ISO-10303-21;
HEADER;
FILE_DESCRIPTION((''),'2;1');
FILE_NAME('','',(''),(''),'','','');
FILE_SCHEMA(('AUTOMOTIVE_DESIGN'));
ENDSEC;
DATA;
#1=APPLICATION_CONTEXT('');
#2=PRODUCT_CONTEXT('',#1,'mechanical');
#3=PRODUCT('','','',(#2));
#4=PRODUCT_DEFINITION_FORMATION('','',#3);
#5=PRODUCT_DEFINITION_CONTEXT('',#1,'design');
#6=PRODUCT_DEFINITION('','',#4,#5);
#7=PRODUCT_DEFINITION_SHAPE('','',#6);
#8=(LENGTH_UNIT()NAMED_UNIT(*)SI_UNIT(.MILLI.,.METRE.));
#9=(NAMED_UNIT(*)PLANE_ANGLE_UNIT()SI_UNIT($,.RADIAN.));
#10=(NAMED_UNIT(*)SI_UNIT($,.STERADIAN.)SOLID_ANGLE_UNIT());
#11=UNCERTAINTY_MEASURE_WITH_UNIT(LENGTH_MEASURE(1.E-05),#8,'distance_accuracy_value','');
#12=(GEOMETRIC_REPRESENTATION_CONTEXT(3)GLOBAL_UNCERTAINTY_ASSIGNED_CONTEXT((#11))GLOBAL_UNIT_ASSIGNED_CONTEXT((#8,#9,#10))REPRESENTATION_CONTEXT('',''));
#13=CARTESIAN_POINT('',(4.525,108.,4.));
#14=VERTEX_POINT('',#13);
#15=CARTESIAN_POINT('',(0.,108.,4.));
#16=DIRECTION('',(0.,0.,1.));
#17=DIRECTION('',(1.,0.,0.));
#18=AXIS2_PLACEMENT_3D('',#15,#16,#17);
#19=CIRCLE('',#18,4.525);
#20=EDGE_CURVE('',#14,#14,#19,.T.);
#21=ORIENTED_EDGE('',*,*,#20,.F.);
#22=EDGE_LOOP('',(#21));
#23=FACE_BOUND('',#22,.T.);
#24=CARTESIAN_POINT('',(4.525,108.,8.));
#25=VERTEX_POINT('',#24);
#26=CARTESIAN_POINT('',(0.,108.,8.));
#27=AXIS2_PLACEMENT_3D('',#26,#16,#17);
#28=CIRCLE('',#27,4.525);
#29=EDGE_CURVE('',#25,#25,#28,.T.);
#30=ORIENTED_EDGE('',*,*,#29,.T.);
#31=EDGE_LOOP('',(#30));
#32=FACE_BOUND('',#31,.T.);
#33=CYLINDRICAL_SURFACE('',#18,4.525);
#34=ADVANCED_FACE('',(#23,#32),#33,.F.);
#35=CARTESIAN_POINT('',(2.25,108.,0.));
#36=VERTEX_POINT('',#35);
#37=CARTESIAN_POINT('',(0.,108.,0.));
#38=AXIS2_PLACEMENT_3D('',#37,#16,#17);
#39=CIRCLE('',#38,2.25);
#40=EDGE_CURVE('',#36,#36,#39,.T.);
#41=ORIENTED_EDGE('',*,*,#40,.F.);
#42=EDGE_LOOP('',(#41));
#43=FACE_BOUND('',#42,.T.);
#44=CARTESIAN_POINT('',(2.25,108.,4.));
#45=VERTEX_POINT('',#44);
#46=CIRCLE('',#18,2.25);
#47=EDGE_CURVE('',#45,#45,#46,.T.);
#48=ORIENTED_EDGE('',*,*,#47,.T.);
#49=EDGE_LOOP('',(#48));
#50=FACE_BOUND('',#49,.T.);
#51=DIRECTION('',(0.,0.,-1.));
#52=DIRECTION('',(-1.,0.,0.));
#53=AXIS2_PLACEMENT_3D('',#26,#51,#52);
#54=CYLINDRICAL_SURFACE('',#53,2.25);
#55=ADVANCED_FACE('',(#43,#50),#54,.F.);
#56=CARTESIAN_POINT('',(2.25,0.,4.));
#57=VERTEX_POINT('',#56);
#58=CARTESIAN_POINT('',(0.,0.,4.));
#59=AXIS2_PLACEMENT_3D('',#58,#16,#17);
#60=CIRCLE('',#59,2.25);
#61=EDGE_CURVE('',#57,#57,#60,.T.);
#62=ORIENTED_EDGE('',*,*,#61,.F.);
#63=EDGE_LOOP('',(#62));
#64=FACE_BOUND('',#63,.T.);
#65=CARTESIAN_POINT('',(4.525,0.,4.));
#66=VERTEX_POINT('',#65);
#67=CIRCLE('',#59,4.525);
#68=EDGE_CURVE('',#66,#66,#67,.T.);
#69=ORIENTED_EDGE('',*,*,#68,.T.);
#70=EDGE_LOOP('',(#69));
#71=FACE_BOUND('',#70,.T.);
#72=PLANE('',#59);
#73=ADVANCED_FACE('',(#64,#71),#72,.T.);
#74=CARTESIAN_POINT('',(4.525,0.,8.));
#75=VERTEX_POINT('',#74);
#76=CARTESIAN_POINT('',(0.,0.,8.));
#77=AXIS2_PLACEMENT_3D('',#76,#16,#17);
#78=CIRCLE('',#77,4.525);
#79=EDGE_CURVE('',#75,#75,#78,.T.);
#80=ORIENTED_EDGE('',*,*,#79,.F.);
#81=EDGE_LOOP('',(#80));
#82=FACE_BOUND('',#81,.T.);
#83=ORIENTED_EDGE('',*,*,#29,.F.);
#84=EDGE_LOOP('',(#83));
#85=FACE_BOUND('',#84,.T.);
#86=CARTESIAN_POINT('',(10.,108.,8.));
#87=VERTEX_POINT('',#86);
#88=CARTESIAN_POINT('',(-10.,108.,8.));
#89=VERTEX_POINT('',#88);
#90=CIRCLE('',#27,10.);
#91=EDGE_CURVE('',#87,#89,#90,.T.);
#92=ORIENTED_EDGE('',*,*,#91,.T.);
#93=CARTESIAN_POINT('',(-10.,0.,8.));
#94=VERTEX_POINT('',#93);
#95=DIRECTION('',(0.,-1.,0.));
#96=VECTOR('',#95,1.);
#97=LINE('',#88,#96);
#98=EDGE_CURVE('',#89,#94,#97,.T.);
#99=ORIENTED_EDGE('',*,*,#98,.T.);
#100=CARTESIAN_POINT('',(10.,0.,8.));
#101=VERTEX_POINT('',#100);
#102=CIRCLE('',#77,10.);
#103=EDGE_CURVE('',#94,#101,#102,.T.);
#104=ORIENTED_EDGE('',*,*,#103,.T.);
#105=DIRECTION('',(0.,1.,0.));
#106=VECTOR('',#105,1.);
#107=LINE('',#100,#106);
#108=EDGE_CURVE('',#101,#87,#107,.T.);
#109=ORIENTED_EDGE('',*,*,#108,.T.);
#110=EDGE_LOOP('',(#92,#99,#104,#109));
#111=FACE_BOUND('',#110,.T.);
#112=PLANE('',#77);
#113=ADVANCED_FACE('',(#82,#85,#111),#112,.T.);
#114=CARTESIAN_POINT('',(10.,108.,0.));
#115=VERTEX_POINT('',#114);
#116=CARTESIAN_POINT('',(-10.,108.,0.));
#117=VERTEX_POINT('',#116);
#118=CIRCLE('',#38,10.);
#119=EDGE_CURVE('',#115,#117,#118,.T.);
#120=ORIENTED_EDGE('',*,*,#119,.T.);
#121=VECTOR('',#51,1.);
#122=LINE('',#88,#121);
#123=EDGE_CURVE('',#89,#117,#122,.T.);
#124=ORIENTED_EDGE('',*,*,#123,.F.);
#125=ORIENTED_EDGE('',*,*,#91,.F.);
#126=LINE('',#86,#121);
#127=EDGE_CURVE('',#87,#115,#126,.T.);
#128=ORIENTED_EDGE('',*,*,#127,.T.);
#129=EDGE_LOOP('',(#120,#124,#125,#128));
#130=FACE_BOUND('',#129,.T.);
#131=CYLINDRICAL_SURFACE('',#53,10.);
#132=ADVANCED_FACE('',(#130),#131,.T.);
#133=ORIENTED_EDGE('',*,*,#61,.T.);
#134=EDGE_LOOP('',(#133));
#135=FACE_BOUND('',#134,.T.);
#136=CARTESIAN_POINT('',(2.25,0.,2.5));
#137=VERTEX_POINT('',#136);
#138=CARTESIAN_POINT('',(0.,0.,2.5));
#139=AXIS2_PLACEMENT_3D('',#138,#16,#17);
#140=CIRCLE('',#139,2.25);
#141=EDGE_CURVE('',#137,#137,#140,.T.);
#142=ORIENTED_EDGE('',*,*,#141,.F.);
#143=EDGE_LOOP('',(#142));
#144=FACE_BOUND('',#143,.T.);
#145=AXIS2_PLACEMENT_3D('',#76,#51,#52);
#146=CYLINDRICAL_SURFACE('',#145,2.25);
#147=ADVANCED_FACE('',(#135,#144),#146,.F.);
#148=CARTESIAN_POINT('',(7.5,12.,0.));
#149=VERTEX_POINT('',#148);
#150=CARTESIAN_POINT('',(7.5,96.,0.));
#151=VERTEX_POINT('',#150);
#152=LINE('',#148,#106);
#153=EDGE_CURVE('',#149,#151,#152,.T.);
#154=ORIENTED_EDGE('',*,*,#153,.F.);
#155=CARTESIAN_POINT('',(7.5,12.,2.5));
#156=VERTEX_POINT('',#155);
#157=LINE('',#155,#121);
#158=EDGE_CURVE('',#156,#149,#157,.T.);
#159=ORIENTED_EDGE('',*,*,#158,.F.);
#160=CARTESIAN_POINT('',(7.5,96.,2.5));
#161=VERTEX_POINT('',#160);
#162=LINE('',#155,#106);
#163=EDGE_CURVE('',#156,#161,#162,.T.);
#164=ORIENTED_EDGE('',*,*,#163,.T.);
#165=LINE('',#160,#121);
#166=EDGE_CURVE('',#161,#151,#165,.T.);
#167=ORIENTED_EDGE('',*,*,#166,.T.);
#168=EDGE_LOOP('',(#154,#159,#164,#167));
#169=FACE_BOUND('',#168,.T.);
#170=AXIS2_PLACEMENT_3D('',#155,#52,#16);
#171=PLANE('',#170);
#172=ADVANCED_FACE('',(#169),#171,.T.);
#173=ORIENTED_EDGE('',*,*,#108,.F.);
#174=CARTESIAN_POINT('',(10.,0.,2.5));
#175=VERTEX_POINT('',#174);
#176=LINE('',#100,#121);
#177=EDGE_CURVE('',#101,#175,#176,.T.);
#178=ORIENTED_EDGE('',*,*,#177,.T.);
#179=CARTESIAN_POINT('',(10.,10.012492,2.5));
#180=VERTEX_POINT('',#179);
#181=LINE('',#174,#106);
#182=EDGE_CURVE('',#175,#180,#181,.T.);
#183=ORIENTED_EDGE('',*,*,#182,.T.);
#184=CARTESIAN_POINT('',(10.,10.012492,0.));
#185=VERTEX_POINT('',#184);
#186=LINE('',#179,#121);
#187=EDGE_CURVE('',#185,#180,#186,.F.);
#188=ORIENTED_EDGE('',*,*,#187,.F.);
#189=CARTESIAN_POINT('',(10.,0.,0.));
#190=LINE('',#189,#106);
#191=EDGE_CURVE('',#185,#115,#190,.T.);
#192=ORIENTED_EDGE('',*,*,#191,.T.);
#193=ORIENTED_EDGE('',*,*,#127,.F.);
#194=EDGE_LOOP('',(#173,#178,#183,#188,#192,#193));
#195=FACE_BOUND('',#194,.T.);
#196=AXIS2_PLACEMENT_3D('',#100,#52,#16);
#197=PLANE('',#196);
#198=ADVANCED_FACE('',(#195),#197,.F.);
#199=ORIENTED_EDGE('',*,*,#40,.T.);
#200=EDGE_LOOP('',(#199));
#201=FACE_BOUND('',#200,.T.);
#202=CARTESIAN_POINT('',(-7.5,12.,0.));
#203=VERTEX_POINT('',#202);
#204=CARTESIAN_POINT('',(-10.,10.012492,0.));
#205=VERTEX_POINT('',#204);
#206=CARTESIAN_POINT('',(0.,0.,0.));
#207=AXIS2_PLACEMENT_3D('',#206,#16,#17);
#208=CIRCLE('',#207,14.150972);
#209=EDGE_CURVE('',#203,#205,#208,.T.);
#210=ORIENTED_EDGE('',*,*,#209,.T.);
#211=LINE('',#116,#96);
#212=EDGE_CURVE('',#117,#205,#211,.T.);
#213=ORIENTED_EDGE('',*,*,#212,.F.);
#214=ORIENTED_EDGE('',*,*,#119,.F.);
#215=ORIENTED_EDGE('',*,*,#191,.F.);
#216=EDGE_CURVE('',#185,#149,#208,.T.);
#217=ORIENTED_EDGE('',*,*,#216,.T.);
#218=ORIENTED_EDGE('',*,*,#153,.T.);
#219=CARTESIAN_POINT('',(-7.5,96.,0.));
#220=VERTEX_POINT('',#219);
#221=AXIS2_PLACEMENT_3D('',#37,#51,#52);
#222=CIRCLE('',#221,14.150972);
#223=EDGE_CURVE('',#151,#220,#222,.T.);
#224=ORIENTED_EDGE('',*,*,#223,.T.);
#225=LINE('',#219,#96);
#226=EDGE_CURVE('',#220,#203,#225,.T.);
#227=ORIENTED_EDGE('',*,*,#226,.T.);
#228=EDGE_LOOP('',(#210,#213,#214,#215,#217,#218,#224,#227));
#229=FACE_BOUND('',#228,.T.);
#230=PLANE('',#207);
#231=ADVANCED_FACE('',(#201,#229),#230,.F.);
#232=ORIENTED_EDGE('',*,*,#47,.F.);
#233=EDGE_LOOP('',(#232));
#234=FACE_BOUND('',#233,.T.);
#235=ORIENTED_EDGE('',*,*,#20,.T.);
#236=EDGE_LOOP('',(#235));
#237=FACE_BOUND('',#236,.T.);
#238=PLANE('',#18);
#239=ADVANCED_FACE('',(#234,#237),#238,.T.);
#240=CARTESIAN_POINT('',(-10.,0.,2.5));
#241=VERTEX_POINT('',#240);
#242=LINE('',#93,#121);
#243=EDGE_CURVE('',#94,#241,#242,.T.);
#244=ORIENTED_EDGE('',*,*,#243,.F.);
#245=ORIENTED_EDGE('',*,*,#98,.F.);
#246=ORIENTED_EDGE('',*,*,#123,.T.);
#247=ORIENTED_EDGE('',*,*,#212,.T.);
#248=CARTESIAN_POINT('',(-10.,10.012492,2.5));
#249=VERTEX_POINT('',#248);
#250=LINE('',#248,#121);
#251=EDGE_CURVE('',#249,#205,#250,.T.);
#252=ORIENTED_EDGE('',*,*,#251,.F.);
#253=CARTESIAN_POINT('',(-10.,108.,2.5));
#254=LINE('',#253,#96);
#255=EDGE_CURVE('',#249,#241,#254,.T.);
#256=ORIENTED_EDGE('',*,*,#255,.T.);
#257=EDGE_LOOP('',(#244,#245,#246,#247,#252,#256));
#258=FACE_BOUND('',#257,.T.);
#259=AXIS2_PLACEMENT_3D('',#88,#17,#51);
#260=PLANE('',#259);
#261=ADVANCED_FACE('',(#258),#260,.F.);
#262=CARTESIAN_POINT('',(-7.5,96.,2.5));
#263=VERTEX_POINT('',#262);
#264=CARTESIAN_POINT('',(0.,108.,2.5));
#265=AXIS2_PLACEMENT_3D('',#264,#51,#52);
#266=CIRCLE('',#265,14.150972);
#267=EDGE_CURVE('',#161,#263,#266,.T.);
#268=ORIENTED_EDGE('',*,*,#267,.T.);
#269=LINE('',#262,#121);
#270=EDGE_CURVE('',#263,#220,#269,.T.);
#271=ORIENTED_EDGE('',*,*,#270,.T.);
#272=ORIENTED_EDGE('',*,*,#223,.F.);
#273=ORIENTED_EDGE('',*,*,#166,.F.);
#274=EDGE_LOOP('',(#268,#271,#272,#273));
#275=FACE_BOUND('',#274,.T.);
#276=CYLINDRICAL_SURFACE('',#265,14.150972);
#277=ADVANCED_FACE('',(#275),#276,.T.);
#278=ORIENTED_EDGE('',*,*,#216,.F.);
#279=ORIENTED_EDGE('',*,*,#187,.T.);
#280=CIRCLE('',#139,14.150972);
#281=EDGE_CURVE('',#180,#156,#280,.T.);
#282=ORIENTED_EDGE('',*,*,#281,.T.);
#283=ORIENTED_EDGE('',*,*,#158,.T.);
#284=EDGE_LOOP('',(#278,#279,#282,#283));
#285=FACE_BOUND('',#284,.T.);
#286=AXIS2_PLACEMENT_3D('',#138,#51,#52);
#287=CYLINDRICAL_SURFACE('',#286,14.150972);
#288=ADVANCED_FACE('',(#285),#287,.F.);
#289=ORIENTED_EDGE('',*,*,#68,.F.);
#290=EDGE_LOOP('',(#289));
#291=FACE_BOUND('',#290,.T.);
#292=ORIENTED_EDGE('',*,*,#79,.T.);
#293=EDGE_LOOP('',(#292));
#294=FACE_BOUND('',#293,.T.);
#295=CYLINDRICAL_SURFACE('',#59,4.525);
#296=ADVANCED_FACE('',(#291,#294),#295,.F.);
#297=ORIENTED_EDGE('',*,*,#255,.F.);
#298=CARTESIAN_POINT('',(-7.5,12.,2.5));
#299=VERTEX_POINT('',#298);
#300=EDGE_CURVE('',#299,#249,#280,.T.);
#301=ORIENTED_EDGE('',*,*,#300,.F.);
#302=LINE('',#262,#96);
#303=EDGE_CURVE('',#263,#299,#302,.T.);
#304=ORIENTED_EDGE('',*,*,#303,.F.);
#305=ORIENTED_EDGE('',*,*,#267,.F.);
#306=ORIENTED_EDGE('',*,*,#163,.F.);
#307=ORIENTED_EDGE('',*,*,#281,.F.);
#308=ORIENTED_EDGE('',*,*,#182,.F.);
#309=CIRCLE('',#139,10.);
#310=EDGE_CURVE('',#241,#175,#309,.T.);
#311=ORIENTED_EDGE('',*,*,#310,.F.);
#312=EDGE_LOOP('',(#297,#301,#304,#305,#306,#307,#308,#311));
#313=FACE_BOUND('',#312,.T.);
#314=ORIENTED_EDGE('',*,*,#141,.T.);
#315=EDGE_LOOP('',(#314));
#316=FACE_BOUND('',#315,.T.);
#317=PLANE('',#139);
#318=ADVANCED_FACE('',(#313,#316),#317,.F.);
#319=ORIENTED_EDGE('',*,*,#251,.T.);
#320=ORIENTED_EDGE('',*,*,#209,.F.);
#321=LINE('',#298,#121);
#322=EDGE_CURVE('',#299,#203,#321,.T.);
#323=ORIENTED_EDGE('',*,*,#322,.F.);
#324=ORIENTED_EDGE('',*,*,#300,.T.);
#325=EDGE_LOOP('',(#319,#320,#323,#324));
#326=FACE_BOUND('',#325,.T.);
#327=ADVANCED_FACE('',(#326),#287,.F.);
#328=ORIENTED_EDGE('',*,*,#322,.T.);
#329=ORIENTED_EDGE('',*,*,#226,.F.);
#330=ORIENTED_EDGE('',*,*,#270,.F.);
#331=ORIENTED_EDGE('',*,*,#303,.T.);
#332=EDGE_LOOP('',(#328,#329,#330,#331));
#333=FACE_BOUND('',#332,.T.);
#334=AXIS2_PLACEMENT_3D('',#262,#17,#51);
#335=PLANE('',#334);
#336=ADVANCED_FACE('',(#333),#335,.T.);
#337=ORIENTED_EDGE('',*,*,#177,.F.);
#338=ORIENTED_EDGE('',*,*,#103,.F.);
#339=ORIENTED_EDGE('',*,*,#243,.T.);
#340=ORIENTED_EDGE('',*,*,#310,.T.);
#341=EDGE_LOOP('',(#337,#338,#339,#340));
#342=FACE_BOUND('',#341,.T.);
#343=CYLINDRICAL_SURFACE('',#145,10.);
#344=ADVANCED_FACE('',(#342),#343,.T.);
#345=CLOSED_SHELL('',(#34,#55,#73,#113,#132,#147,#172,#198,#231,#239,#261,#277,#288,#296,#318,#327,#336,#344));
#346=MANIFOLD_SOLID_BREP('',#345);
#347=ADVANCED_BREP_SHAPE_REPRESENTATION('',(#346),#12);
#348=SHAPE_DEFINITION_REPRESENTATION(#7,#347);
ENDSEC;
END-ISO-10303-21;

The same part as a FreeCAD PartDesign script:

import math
import FreeCAD as App
import Part
import Sketcher
Q = App.Units.Quantity

doc = App.newDocument("Part")
body = doc.addObject("PartDesign::Body", "Body")

# Sketch on XY plane
sketch1 = doc.addObject("Sketcher::SketchObject", "Sketch")
body.addObject(sketch1)
sketch1.AttachmentSupport = (doc.XY_Plane, [""])
sketch1.MapMode = "FlatFace"
sketch1.addGeometry([
    Part.LineSegment(App.Vector(10, 0, 0), App.Vector(10, 108, 0)),  # 0
    Part.ArcOfCircle(Part.Circle(App.Vector(0, 108, 0), App.Vector(0, 0, 1), 10), math.radians(0), math.radians(180)),  # 1
    Part.LineSegment(App.Vector(-10, 108, 0), App.Vector(-10, 0, 0)),  # 2
    Part.ArcOfCircle(Part.Circle(App.Vector(0, 0, 0), App.Vector(0, 0, 1), 10), math.radians(180), math.radians(360)),  # 3
    Part.Circle(App.Vector(0, 0, 0), App.Vector(0, 0, 1), 2.25),  # 4
    Part.Circle(App.Vector(0, 108, 0), App.Vector(0, 0, 1), 2.25),  # 5
], False)
sketch1.addConstraint([
    Sketcher.Constraint("Tangent", 0, 2, 1, 1),
    Sketcher.Constraint("Tangent", 1, 2, 2, 1),
    Sketcher.Constraint("Tangent", 2, 2, 3, 1),
    Sketcher.Constraint("Tangent", 3, 2, 0, 1),
    Sketcher.Constraint("Vertical", 0),
    Sketcher.Constraint("Vertical", 2),
    Sketcher.Constraint("Coincident", 3, 3, -1, 1),
    Sketcher.Constraint("Coincident", 4, 3, -1, 1),
    Sketcher.Constraint("Coincident", 5, 3, 1, 3),
    Sketcher.Constraint("Equal", 4, 5),
    Sketcher.Constraint("Radius", 1, Q("10 mm")),
    Sketcher.Constraint("Diameter", 4, Q("4.5 mm")),
    Sketcher.Constraint("DistanceY", 0, 1, 0, 2, Q("108 mm")),
])
pad1 = doc.addObject("PartDesign::Pad", "Pad")
body.addObject(pad1)
pad1.Profile = sketch1
pad1.Length = 8

# Sketch on XY plane
sketch2 = doc.addObject("Sketcher::SketchObject", "Sketch001")
body.addObject(sketch2)
sketch2.AttachmentSupport = (doc.XY_Plane, [""])
sketch2.MapMode = "FlatFace"
sketch2.AttachmentOffset = App.Placement(App.Vector(0, 0, 8), App.Rotation())
sketch2.addGeometry([
    Part.Circle(App.Vector(0, 0, 0), App.Vector(0, 0, 1), 4.525),
    Part.Circle(App.Vector(0, 108, 0), App.Vector(0, 0, 1), 4.525),
], False)
sketch2.addConstraint([
    Sketcher.Constraint("Coincident", 0, 3, -1, 1),
    Sketcher.Constraint("Equal", 0, 1),
    Sketcher.Constraint("PointOnObject", 1, 3, -2),
    Sketcher.Constraint("Diameter", 0, Q("9.05 mm")),
    Sketcher.Constraint("DistanceY", -1, 1, 1, 3, Q("108 mm")),
])
pocket1 = doc.addObject("PartDesign::Pocket", "Pocket")
body.addObject(pocket1)
pocket1.Profile = sketch2
pocket1.Length = 4

# Sketch on XY plane
sketch3 = doc.addObject("Sketcher::SketchObject", "Sketch002")
body.addObject(sketch3)
sketch3.AttachmentSupport = (doc.XY_Plane, [""])
sketch3.MapMode = "FlatFace"
sketch3.addGeometry([
    Part.LineSegment(App.Vector(7.5, 12, 0), App.Vector(7.5, 96, 0)),
    Part.ArcOfCircle(Part.Circle(App.Vector(0, 108, 0), App.Vector(0, 0, 1), 14.150972), math.radians(-122.005383), math.radians(-57.994617)),
    Part.LineSegment(App.Vector(-7.5, 96, 0), App.Vector(-7.5, 12, 0)),
    Part.ArcOfCircle(Part.Circle(App.Vector(0, 0, 0), App.Vector(0, 0, 1), 14.150972), math.radians(122.005383), math.radians(417.994617)),
], False)
sketch3.addConstraint([
    Sketcher.Constraint("Coincident", 0, 2, 1, 2),
    Sketcher.Constraint("Coincident", 1, 1, 2, 1),
    Sketcher.Constraint("Coincident", 2, 2, 3, 1),
    Sketcher.Constraint("Coincident", 3, 2, 0, 1),
    Sketcher.Constraint("Vertical", 0),
    Sketcher.Constraint("Vertical", 2),
    Sketcher.Constraint("Coincident", 3, 3, -1, 1),
    Sketcher.Constraint("Equal", 1, 3),
    Sketcher.Constraint("Symmetric", 0, 2, 1, 1, -2),
    Sketcher.Constraint("DistanceY", 0, 1, 0, 2, Q("84 mm")),
    Sketcher.Constraint("DistanceY", -1, 1, 1, 3, Q("108 mm")),
    Sketcher.Constraint("DistanceX", 1, 1, 0, 2, Q("15 mm")),
])
pocket2 = doc.addObject("PartDesign::Pocket", "Pocket001")
body.addObject(pocket2)
pocket2.Profile = sketch3
pocket2.Length = 2.5
pocket2.Reversed = True

doc.recompute()
